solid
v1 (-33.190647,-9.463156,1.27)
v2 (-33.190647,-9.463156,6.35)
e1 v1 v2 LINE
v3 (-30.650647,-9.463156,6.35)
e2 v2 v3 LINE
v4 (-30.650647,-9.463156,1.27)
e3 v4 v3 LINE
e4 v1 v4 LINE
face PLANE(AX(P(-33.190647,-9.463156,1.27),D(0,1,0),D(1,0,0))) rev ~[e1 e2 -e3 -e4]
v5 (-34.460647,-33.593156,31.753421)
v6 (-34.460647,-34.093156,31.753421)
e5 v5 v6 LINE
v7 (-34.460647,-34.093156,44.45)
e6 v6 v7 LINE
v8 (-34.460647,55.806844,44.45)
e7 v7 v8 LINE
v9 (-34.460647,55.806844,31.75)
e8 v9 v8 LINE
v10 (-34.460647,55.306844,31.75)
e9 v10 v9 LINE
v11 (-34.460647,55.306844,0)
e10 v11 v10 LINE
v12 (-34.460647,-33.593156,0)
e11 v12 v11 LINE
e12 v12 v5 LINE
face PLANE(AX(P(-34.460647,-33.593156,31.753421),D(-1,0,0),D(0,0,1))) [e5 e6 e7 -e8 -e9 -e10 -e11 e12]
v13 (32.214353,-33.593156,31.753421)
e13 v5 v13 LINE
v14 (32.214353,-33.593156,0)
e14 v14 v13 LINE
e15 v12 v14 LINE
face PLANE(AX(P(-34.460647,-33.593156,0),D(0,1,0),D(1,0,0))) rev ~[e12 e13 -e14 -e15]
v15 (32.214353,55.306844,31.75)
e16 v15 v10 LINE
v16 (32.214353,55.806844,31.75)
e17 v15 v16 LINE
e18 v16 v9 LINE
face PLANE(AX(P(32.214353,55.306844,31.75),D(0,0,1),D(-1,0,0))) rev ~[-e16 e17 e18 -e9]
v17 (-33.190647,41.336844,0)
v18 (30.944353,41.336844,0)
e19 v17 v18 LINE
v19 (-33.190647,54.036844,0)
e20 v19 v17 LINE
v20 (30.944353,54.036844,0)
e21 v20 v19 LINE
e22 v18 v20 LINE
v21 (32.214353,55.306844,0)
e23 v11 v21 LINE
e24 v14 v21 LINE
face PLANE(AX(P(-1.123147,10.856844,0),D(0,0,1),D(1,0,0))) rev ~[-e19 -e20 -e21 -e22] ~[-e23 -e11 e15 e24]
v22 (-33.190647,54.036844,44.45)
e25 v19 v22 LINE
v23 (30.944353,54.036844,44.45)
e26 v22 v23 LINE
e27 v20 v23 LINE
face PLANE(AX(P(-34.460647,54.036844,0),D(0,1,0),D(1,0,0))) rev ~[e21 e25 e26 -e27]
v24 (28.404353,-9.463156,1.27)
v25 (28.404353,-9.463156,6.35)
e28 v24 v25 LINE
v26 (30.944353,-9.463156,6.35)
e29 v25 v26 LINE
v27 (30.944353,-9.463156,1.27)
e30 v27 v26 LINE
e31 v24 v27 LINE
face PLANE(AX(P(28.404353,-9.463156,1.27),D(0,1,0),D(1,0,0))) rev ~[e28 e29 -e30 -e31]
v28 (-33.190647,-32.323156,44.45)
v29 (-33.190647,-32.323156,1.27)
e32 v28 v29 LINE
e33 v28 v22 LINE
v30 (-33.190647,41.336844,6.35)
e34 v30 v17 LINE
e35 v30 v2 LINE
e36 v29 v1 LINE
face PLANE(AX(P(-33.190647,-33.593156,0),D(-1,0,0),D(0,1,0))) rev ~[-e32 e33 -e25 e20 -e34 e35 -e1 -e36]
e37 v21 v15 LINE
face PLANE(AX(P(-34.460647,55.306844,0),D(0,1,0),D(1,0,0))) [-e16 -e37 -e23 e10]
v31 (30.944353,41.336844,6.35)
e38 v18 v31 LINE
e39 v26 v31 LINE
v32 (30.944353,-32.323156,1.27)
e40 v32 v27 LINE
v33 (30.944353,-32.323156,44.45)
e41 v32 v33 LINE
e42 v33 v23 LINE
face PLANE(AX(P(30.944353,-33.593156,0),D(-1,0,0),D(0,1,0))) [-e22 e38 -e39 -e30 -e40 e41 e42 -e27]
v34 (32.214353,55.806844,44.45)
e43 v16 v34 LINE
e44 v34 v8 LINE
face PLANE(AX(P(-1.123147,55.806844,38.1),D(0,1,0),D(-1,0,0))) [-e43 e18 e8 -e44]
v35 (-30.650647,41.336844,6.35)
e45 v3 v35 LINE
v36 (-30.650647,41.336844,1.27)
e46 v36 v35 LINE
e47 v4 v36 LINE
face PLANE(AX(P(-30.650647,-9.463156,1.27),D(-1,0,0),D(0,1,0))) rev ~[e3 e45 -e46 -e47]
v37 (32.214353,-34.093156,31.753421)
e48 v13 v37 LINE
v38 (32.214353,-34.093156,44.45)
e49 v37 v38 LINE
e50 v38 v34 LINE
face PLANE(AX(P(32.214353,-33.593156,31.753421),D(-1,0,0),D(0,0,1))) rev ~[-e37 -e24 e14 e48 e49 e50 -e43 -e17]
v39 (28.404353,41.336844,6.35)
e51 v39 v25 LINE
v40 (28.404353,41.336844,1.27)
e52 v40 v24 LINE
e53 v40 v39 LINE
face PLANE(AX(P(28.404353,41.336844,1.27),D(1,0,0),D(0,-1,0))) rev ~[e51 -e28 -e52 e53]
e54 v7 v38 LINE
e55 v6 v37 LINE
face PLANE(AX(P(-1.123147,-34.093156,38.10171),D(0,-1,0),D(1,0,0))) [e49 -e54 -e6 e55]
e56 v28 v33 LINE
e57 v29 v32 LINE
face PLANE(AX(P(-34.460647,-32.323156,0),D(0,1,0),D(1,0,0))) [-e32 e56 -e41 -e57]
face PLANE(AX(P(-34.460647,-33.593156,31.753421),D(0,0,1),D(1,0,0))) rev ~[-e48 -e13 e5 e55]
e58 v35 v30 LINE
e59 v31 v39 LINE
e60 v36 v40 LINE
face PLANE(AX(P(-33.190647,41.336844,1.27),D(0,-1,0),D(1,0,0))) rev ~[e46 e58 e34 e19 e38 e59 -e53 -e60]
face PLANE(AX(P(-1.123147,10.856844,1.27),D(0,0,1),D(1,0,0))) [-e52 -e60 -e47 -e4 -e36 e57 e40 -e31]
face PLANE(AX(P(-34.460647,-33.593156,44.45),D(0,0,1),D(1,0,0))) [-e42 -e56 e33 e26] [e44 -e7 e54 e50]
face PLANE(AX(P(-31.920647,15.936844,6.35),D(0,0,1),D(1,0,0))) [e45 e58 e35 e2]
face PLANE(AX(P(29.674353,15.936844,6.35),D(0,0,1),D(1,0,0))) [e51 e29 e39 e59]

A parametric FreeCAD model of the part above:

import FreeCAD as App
import Part
import Sketcher
Q = App.Units.Quantity


def faces_at(feature, points):
    """Names of the faces that lie closest to the given points."""
    faces = feature.Shape.Faces
    near = lambda p: min(range(len(faces)), key=lambda i: faces[i].distToShape(Part.Vertex(*p))[0])
    return sorted({f"Face{near(p) + 1}" for p in points})

doc = App.newDocument("Part")
body = doc.addObject("PartDesign::Body", "Body")

sketch1 = doc.addObject("Sketcher::SketchObject", "Sketch")
body.addObject(sketch1)
sketch1.AttachmentSupport = (doc.XY_Plane, [""])
sketch1.MapMode = "FlatFace"
sketch1.addGeometry(Part.LineSegment(App.Vector(-34.460647, 55.306844, 0), App.Vector(-34.460647, -33.593156, 0)), False)
sketch1.addGeometry(Part.LineSegment(App.Vector(-34.460647, -33.593156, 0), App.Vector(32.214353, -33.593156, 0)), False)
sketch1.addGeometry(Part.LineSegment(App.Vector(32.214353, -33.593156, 0), App.Vector(32.214353, 55.306844, 0)), False)
sketch1.addGeometry(Part.LineSegment(App.Vector(32.214353, 55.306844, 0), App.Vector(-34.460647, 55.306844, 0)), False)
sketch1.addConstraint(Sketcher.Constraint("Coincident", 0, 2, 1, 1))
sketch1.addConstraint(Sketcher.Constraint("Coincident", 1, 2, 2, 1))
sketch1.addConstraint(Sketcher.Constraint("Coincident", 2, 2, 3, 1))
sketch1.addConstraint(Sketcher.Constraint("Coincident", 3, 2, 0, 1))
sketch1.addConstraint(Sketcher.Constraint("Vertical", 0))
sketch1.addConstraint(Sketcher.Constraint("Horizontal", 1))
sketch1.addConstraint(Sketcher.Constraint("Vertical", 2))
sketch1.addConstraint(Sketcher.Constraint("Horizontal", 3))
sketch1.addConstraint(Sketcher.Constraint("DistanceY", 0, 2, 0, 1, Q("3.5 in")))
sketch1.addConstraint(Sketcher.Constraint("DistanceX", 1, 1, 1, 2, Q("2.625 in")))
sketch1.addConstraint(Sketcher.Constraint("DistanceX", 0, 2, -1, 1, 34.460647))
sketch1.addConstraint(Sketcher.Constraint("DistanceY", 0, 2, -1, 1, 33.593156))
pad1 = doc.addObject("PartDesign::Pad", "Pad")
body.addObject(pad1)
pad1.Profile = sketch1
pad1.Length = Q("1.75 in")
doc.recompute()

thickness = doc.addObject("PartDesign::Thickness", "Thickness")
body.addObject(thickness)
thickness.Base = (pad1, faces_at(pad1, [(-1.123, 10.857, 44.45)]))
thickness.Value = Q("0.05 in")
thickness.Reversed = True
thickness.Join = "Arc"

sketch2 = doc.addObject("Sketcher::SketchObject", "Sketch001")
body.addObject(sketch2)
sketch2.AttachmentSupport = (doc.XY_Plane, [""])
sketch2.MapMode = "FlatFace"
sketch2.AttachmentOffset = App.Placement(App.Vector(0, 0, 0.05 * 25.4), App.Rotation())
sketch2.addGeometry(Part.LineSegment(App.Vector(30.944353, 41.336844, 0), App.Vector(28.404353, 41.336844, 0)), False)
sketch2.addGeometry(Part.LineSegment(App.Vector(28.404353, 41.336844, 0), App.Vector(28.404353, -9.463156, 0)), False)
sketch2.addGeometry(Part.LineSegment(App.Vector(28.404353, -9.463156, 0), App.Vector(30.944353, -9.463156, 0)), False)
sketch2.addGeometry(Part.LineSegment(App.Vector(30.944353, -9.463156, 0), App.Vector(30.944353, 41.336844, 0)), False)
sketch2.addGeometry(Part.LineSegment(App.Vector(-30.650647, 41.336844, 0), App.Vector(-33.190647, 41.336844, 0)), False)
sketch2.addGeometry(Part.LineSegment(App.Vector(-33.190647, 41.336844, 0), App.Vector(-33.190647, -9.463156, 0)), False)
sketch2.addGeometry(Part.LineSegment(App.Vector(-33.190647, -9.463156, 0), App.Vector(-30.650647, -9.463156, 0)), False)
sketch2.addGeometry(Part.LineSegment(App.Vector(-30.650647, -9.463156, 0), App.Vector(-30.650647, 41.336844, 0)), False)
sketch2.addConstraint(Sketcher.Constraint("Coincident", 0, 2, 1, 1))
sketch2.addConstraint(Sketcher.Constraint("Coincident", 1, 2, 2, 1))
sketch2.addConstraint(Sketcher.Constraint("Coincident", 2, 2, 3, 1))
sketch2.addConstraint(Sketcher.Constraint("Coincident", 3, 2, 0, 1))
sketch2.addConstraint(Sketcher.Constraint("Coincident", 4, 2, 5, 1))
sketch2.addConstraint(Sketcher.Constraint("Coincident", 5, 2, 6, 1))
sketch2.addConstraint(Sketcher.Constraint("Coincident", 6, 2, 7, 1))
sketch2.addConstraint(Sketcher.Constraint("Coincident", 7, 2, 4, 1))
sketch2.addConstraint(Sketcher.Constraint("Horizontal", 0))
sketch2.addConstraint(Sketcher.Constraint("Vertical", 1))
sketch2.addConstraint(Sketcher.Constraint("Horizontal", 2))
sketch2.addConstraint(Sketcher.Constraint("Vertical", 3))
sketch2.addConstraint(Sketcher.Constraint("Horizontal", 4))
sketch2.addConstraint(Sketcher.Constraint("Vertical", 5))
sketch2.addConstraint(Sketcher.Constraint("Horizontal", 6))
sketch2.addConstraint(Sketcher.Constraint("Vertical", 7))
sketch2.addConstraint(Sketcher.Constraint("Horizontal", 3, 2, 4, 2))
sketch2.addConstraint(Sketcher.Constraint("Horizontal", 2, 2, 5, 2))
sketch2.addConstraint(Sketcher.Constraint("Equal", 2, 4))
sketch2.addConstraint(Sketcher.Constraint("DistanceY", 1, 2, 1, 1, Q("2 in")))
sketch2.addConstraint(Sketcher.Constraint("DistanceX", 0, 2, 0, 1, Q("0.1 in")))
sketch2.addConstraint(Sketcher.Constraint("DistanceX", 4, 2, 0, 2, Q("2.425 in")))
sketch2.addConstraint(Sketcher.Constraint("DistanceX", -1, 1, 0, 2, 28.404353))
sketch2.addConstraint(Sketcher.Constraint("DistanceY", -1, 1, 0, 2, 41.336844))
pad2 = doc.addObject("PartDesign::Pad", "Pad001")
body.addObject(pad2)
pad2.Profile = sketch2
pad2.Length = Q("0.2 in")

sketch3 = doc.addObject("Sketcher::SketchObject", "Sketch002")
body.addObject(sketch3)
sketch3.AttachmentSupport = (doc.XZ_Plane, [""])
sketch3.MapMode = "FlatFace"
sketch3.AttachmentOffset = App.Placement(App.Vector(0, 0, -55.306844), App.Rotation())
sketch3.addGeometry(Part.LineSegment(App.Vector(32.214353, 44.45, 0), App.Vector(32.214353, 31.75, 0)), False)
sketch3.addGeometry(Part.LineSegment(App.Vector(32.214353, 31.75, 0), App.Vector(-34.460647, 31.75, 0)), False)
sketch3.addGeometry(Part.LineSegment(App.Vector(-34.460647, 31.75, 0), App.Vector(-34.460647, 44.45, 0)), False)
sketch3.addGeometry(Part.LineSegment(App.Vector(-34.460647, 44.45, 0), App.Vector(32.214353, 44.45, 0)), False)
sketch3.addConstraint(Sketcher.Constraint("Coincident", 0, 2, 1, 1))
sketch3.addConstraint(Sketcher.Constraint("Coincident", 1, 2, 2, 1))
sketch3.addConstraint(Sketcher.Constraint("Coincident", 2, 2, 3, 1))
sketch3.addConstraint(Sketcher.Constraint("Coincident", 3, 2, 0, 1))
sketch3.addConstraint(Sketcher.Constraint("Vertical", 0))
sketch3.addConstraint(Sketcher.Constraint("Horizontal", 1))
sketch3.addConstraint(Sketcher.Constraint("Vertical", 2))
sketch3.addConstraint(Sketcher.Constraint("Horizontal", 3))
sketch3.addConstraint(Sketcher.Constraint("DistanceY", 0, 2, 0, 1, Q("0.5 in")))
sketch3.addConstraint(Sketcher.Constraint("DistanceX", 1, 2, 1, 1, Q("2.625 in")))
sketch3.addConstraint(Sketcher.Constraint("DistanceY", -1, 1, 0, 2, Q("1.25 in")))
sketch3.addConstraint(Sketcher.Constraint("DistanceX", -1, 1, 0, 2, 32.214353))
pad3 = doc.addObject("PartDesign::Pad", "Pad002")
body.addObject(pad3)
pad3.Profile = sketch3
pad3.Length = 0.5
pad3.Reversed = True

sketch4 = doc.addObject("Sketcher::SketchObject", "Sketch003")
body.addObject(sketch4)
sketch4.AttachmentSupport = (doc.XZ_Plane, [""])
sketch4.MapMode = "FlatFace"
sketch4.AttachmentOffset = App.Placement(App.Vector(0, 0, 33.593156), App.Rotation())
sketch4.addGeometry(Part.LineSegment(App.Vector(-34.460647, 44.45, 0), App.Vector(-34.460647, 31.753421, 0)), False)
sketch4.addGeometry(Part.LineSegment(App.Vector(-34.460647, 31.753421, 0), App.Vector(32.214353, 31.753421, 0)), False)
sketch4.addGeometry(Part.LineSegment(App.Vector(32.214353, 31.753421, 0), App.Vector(32.214353, 44.45, 0)), False)
sketch4.addGeometry(Part.LineSegment(App.Vector(32.214353, 44.45, 0), App.Vector(-34.460647, 44.45, 0)), False)
sketch4.addConstraint(Sketcher.Constraint("Coincident", 0, 2, 1, 1))
sketch4.addConstraint(Sketcher.Constraint("Coincident", 1, 2, 2, 1))
sketch4.addConstraint(Sketcher.Constraint("Coincident", 2, 2, 3, 1))
sketch4.addConstraint(Sketcher.Constraint("Coincident", 3, 2, 0, 1))
sketch4.addConstraint(Sketcher.Constraint("Vertical", 0))
sketch4.addConstraint(Sketcher.Constraint("Horizontal", 1))
sketch4.addConstraint(Sketcher.Constraint("Vertical", 2))
sketch4.addConstraint(Sketcher.Constraint("Horizontal", 3))
sketch4.addConstraint(Sketcher.Constraint("DistanceX", 1, 1, 1, 2, Q("2.625 in")))
sketch4.addConstraint(Sketcher.Constraint("DistanceY", -1, 1, 2, 2, Q("1.75 in")))
sketch4.addConstraint(Sketcher.Constraint("DistanceY", 0, 2, 0, 1, 12.696579))
sketch4.addConstraint(Sketcher.Constraint("DistanceX", 0, 2, -1, 1, 34.460647))
pad4 = doc.addObject("PartDesign::Pad", "Pad003")
body.addObject(pad4)
pad4.Profile = sketch4
pad4.Length = 0.5

sketch5 = doc.addObject("Sketcher::SketchObject", "Sketch004")
body.addObject(sketch5)
sketch5.AttachmentSupport = (doc.XY_Plane, [""])
sketch5.MapMode = "FlatFace"
sketch5.AttachmentOffset = App.Placement(App.Vector(0, 0, 0.05 * 25.4), App.Rotation())
sketch5.addGeometry(Part.LineSegment(App.Vector(-33.190647, 54.036844, 0), App.Vector(-33.190647, 41.336844, 0)), False)
sketch5.addGeometry(Part.LineSegment(App.Vector(-33.190647, 41.336844, 0), App.Vector(30.944353, 41.336844, 0)), False)
sketch5.addGeometry(Part.LineSegment(App.Vector(30.944353, 41.336844, 0), App.Vector(30.944353, 54.036844, 0)), False)
sketch5.addGeometry(Part.LineSegment(App.Vector(30.944353, 54.036844, 0), App.Vector(-33.190647, 54.036844, 0)), False)
sketch5.addConstraint(Sketcher.Constraint("Coincident", 0, 2, 1, 1))
sketch5.addConstraint(Sketcher.Constraint("Coincident", 1, 2, 2, 1))
sketch5.addConstraint(Sketcher.Constraint("Coincident", 2, 2, 3, 1))
sketch5.addConstraint(Sketcher.Constraint("Coincident", 3, 2, 0, 1))
sketch5.addConstraint(Sketcher.Constraint("Vertical", 0))
sketch5.addConstraint(Sketcher.Constraint("Horizontal", 1))
sketch5.addConstraint(Sketcher.Constraint("Vertical", 2))
sketch5.addConstraint(Sketcher.Constraint("Horizontal", 3))
sketch5.addConstraint(Sketcher.Constraint("DistanceY", 0, 2, 0, 1, Q("0.5 in")))
sketch5.addConstraint(Sketcher.Constraint("DistanceX", 1, 1, 1, 2, Q("2.525 in")))
sketch5.addConstraint(Sketcher.Constraint("DistanceX", 0, 2, -1, 1, 33.190647))
sketch5.addConstraint(Sketcher.Constraint("DistanceY", -1, 1, 0, 2, 41.336844))
pocket1 = doc.addObject("PartDesign::Pocket", "Pocket")
body.addObject(pocket1)
pocket1.Profile = sketch5
pocket1.Length = Q("1 in")

doc.recompute()
